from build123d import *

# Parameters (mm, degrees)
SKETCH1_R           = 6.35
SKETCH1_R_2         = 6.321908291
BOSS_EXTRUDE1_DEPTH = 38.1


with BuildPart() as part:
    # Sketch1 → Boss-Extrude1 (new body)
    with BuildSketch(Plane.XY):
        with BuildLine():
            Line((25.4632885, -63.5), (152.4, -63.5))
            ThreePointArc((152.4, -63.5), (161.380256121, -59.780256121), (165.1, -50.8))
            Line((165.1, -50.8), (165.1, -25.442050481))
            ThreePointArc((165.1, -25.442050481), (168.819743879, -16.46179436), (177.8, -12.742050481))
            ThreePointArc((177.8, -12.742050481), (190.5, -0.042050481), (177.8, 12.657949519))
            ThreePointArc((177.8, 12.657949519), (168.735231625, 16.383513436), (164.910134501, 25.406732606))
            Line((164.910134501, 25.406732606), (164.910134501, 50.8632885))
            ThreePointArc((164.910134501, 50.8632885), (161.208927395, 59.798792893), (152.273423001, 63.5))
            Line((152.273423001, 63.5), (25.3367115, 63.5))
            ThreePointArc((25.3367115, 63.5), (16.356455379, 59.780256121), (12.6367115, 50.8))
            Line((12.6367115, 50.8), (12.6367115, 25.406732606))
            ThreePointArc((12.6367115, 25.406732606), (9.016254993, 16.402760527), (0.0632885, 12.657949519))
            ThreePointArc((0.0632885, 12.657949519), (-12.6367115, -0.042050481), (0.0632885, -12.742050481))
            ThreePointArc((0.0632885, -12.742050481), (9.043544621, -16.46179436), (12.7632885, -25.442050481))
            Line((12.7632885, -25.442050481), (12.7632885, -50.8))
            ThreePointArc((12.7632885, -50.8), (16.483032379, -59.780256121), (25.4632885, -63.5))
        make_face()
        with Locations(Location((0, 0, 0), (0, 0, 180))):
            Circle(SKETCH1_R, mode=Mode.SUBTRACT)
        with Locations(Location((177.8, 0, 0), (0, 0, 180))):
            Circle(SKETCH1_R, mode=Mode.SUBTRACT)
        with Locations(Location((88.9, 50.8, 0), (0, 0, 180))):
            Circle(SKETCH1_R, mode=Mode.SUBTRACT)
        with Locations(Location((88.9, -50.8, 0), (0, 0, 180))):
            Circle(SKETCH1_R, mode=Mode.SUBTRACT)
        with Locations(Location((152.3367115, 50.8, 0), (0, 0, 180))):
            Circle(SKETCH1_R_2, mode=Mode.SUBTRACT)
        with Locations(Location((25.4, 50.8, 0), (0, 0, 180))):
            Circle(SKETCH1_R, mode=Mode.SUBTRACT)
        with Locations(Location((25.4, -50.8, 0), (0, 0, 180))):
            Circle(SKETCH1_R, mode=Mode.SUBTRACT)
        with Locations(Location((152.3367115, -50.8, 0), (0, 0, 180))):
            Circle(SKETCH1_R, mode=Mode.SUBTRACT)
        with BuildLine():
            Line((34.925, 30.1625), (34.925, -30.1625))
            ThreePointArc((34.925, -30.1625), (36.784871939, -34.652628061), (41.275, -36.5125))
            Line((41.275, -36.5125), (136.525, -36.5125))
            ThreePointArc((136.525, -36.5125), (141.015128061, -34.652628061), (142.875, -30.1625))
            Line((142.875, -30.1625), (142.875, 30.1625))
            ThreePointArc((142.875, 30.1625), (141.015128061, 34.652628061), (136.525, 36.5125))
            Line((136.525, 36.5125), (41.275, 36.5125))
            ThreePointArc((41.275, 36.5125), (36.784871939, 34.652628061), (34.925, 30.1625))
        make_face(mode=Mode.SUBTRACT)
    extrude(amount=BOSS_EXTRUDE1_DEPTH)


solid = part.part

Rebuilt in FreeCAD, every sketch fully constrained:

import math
import FreeCAD as App
import Part
import Sketcher
from FreeCAD import Vector
Q = App.Units.Quantity

doc = App.newDocument("Part")
body = doc.addObject("PartDesign::Body", "Body")

# Sketch on XY plane
sketch1 = doc.addObject("Sketcher::SketchObject", "Sketch")
body.addObject(sketch1)
sketch1.AttachmentSupport = (doc.XY_Plane, [""])
sketch1.MapMode = "FlatFace"
sketch1.addGeometry([
    Part.LineSegment(Vector(25.463289, -63.5, 0), Vector(152.4, -63.5, 0)),  # 0
    Part.ArcOfCircle(Part.Circle(Vector(152.4, -50.8, 0), Vector(0, 0, 1), 12.7), math.radians(-90), math.radians(0)),  # 1
    Part.LineSegment(Vector(165.1, -50.8, 0), Vector(165.1, -25.44205, 0)),  # 2
    Part.ArcOfCircle(Part.Circle(Vector(177.8, -25.44205, 0), Vector(0, 0, 1), 12.7), math.radians(90), math.radians(180)),  # 3
    Part.ArcOfCircle(Part.Circle(Vector(177.8, -0.04205, 0), Vector(0, 0, 1), 12.7), math.radians(-90), math.radians(90)),  # 4
    Part.ArcOfCircle(Part.Circle(Vector(177.8, 25.548596, 0), Vector(0, 0, 1), 12.890646), math.radians(-179.369441), math.radians(-90)),  # 5
    Part.LineSegment(Vector(164.910135, 25.406733, 0), Vector(164.910135, 50.863289, 0)),  # 6
    Part.ArcOfCircle(Part.Circle(Vector(152.273423, 50.863289, 0), Vector(0, 0, 1), 12.636712), math.radians(0), math.radians(90)),  # 7
    Part.LineSegment(Vector(152.273423, 63.5, 0), Vector(25.336711, 63.5, 0)),  # 8
    Part.ArcOfCircle(Part.Circle(Vector(25.336711, 50.8, 0), Vector(0, 0, 1), 12.7), math.radians(90), math.radians(180)),  # 9
    Part.LineSegment(Vector(12.636712, 50.8, 0), Vector(12.636712, 25.406733, 0)),  # 10
    Part.ArcOfCircle(Part.Circle(Vector(0.063288, 25.232579, 0), Vector(0, 0, 1), 12.574629), math.radians(-90), math.radians(0.793551)),  # 11
    Part.ArcOfCircle(Part.Circle(Vector(0.063288, -0.04205, 0), Vector(0, 0, 1), 12.7), math.radians(90), math.radians(270)),  # 12
    Part.ArcOfCircle(Part.Circle(Vector(0.063288, -25.44205, 0), Vector(0, 0, 1), 12.7), math.radians(0), math.radians(90)),  # 13
    Part.LineSegment(Vector(12.763288, -25.44205, 0), Vector(12.763288, -50.8, 0)),  # 14
    Part.ArcOfCircle(Part.Circle(Vector(25.463289, -50.8, 0), Vector(0, 0, 1), 12.7), math.radians(180), math.radians(270)),  # 15
    Part.Circle(Vector(25.4, -50.8, 0), Vector(0, 0, 1), 6.35),  # 16
    Part.Circle(Vector(88.9, -50.8, 0), Vector(0, 0, 1), 6.35),  # 17
    Part.Circle(Vector(152.336712, -50.8, 0), Vector(0, 0, 1), 6.35),  # 18
    Part.Circle(Vector(0, 0, 0), Vector(0, 0, 1), 6.35),  # 19
    Part.Circle(Vector(25.4, 50.8, 0), Vector(0, 0, 1), 6.35),  # 20
    Part.LineSegment(Vector(34.925, -30.1625, 0), Vector(34.925, 30.1625, 0)),  # 21
    Part.ArcOfCircle(Part.Circle(Vector(41.275, 30.1625, 0), Vector(0, 0, 1), 6.35), math.radians(90), math.radians(180)),  # 22
    Part.LineSegment(Vector(41.275, 36.5125, 0), Vector(136.525, 36.5125, 0)),  # 23
    Part.ArcOfCircle(Part.Circle(Vector(136.525, 30.1625, 0), Vector(0, 0, 1), 6.35), math.radians(0), math.radians(90)),  # 24
    Part.LineSegment(Vector(142.875, 30.1625, 0), Vector(142.875, -30.1625, 0)),  # 25
    Part.ArcOfCircle(Part.Circle(Vector(136.525, -30.1625, 0), Vector(0, 0, 1), 6.35), math.radians(-90), math.radians(0)),  # 26
    Part.LineSegment(Vector(136.525, -36.5125, 0), Vector(41.275, -36.5125, 0)),  # 27
    Part.ArcOfCircle(Part.Circle(Vector(41.275, -30.1625, 0), Vector(0, 0, 1), 6.35), math.radians(180), math.radians(270)),  # 28
    Part.Circle(Vector(177.8, 0, 0), Vector(0, 0, 1), 6.35),  # 29
    Part.Circle(Vector(88.9, 50.8, 0), Vector(0, 0, 1), 6.35),  # 30
    Part.Circle(Vector(152.336712, 50.8, 0), Vector(0, 0, 1), 6.321908),  # 31
], False)
sketch1.addConstraint([
    Sketcher.Constraint("Coincident", 0, 2, 1, 1),
    Sketcher.Constraint("Coincident", 1, 2, 2, 1),
    Sketcher.Constraint("Coincident", 2, 2, 3, 2),
    Sketcher.Constraint("Coincident", 3, 1, 4, 1),
    Sketcher.Constraint("Coincident", 4, 2, 5, 2),
    Sketcher.Constraint("Coincident", 5, 1, 6, 1),
    Sketcher.Constraint("Coincident", 6, 2, 7, 1),
    Sketcher.Constraint("Coincident", 7, 2, 8, 1),
    Sketcher.Constraint("Coincident", 8, 2, 9, 1),
    Sketcher.Constraint("Coincident", 9, 2, 10, 1),
    Sketcher.Constraint("Coincident", 10, 2, 11, 2),
    Sketcher.Constraint("Coincident", 11, 1, 12, 1),
    Sketcher.Constraint("Coincident", 12, 2, 13, 2),
    Sketcher.Constraint("Coincident", 13, 1, 14, 1),
    Sketcher.Constraint("Coincident", 14, 2, 15, 1),
    Sketcher.Constraint("Coincident", 15, 2, 0, 1),
    Sketcher.Constraint("Coincident", 21, 2, 22, 2),
    Sketcher.Constraint("Coincident", 22, 1, 23, 1),
    Sketcher.Constraint("Coincident", 23, 2, 24, 2),
    Sketcher.Constraint("Coincident", 24, 1, 25, 1),
    Sketcher.Constraint("Coincident", 25, 2, 26, 2),
    Sketcher.Constraint("Coincident", 26, 1, 27, 1),
    Sketcher.Constraint("Coincident", 27, 2, 28, 2),
    Sketcher.Constraint("Coincident", 28, 1, 21, 1),
    Sketcher.Constraint("Horizontal", 0),
    Sketcher.Constraint("Vertical", 2),
    Sketcher.Constraint("Vertical", 6),
    Sketcher.Constraint("Horizontal", 8),
    Sketcher.Constraint("Vertical", 10),
    Sketcher.Constraint("Vertical", 14),
    Sketcher.Constraint("Vertical", 21),
    Sketcher.Constraint("Horizontal", 23),
    Sketcher.Constraint("Vertical", 25),
    Sketcher.Constraint("Horizontal", 27),
    Sketcher.Constraint("Coincident", 19, 3, -1, 1),
    Sketcher.Constraint("PointOnObject", 29, 3, -1),
    Sketcher.Constraint("Diameter", 16, Q("0.5 in")),
    Sketcher.Constraint("Diameter", 17, Q("0.5 in")),
    Sketcher.Constraint("Diameter", 18, Q("0.5 in")),
    Sketcher.Constraint("Diameter", 19, Q("0.5 in")),
    Sketcher.Constraint("Diameter", 20, Q("0.5 in")),
    Sketcher.Constraint("Diameter", 29, Q("0.5 in")),
    Sketcher.Constraint("Diameter", 30, Q("0.5 in")),
    Sketcher.Constraint("Radius", 1, Q("0.5 in")),
    Sketcher.Constraint("Radius", 3, Q("0.5 in")),
    Sketcher.Constraint("Radius", 4, Q("0.5 in")),
    Sketcher.Constraint("Radius", 9, Q("0.5 in")),
    Sketcher.Constraint("Radius", 12, Q("0.5 in")),
    Sketcher.Constraint("Radius", 13, Q("0.5 in")),
    Sketcher.Constraint("Radius", 15, Q("0.5 in")),
    Sketcher.Constraint("Radius", 22, Q("0.25 in")),
    Sketcher.Constraint("Radius", 24, Q("0.25 in")),
    Sketcher.Constraint("Radius", 26, Q("0.25 in")),
    Sketcher.Constraint("Radius", 28, Q("0.25 in")),
    Sketcher.Constraint("DistanceX", -1, 1, 1, 3, Q("6 in")),
    Sketcher.Constraint("DistanceY", 1, 3, -1, 1, Q("2 in")),
    Sketcher.Constraint("DistanceX", -1, 1, 4, 3, Q("7 in")),
    Sketcher.Constraint("DistanceX", -1, 1, 5, 3, Q("7 in")),
    Sketcher.Constraint("DistanceY", -1, 1, 9, 3, Q("2 in")),
    Sketcher.Constraint("DistanceX", -1, 1, 16, 3, Q("1 in")),
    Sketcher.Constraint("DistanceY", 16, 3, -1, 1, Q("2 in")),
    Sketcher.Constraint("DistanceY", 17, 3, -1, 1, Q("2 in")),
    Sketcher.Constraint("DistanceY", 18, 3, -1, 1, Q("2 in")),
    Sketcher.Constraint("DistanceX", -1, 1, 20, 3, Q("1 in")),
    Sketcher.Constraint("DistanceY", -1, 1, 20, 3, Q("2 in")),
    Sketcher.Constraint("DistanceX", -1, 1, 29, 3, Q("7 in")),
    Sketcher.Constraint("DistanceY", -1, 1, 30, 3, Q("2 in")),
    Sketcher.Constraint("DistanceY", -1, 1, 31, 3, Q("2 in")),
    Sketcher.Constraint("DistanceX", -1, 1, 0, 2, Q("6 in")),
    Sketcher.Constraint("DistanceY", 1, 2, -1, 1, Q("2 in")),
    Sketcher.Constraint("DistanceX", -1, 1, 3, 1, Q("7 in")),
    Sketcher.Constraint("DistanceX", -1, 1, 4, 2, Q("7 in")),
    Sketcher.Constraint("DistanceY", -1, 1, 9, 2, Q("2 in")),
    Sketcher.Constraint("DistanceY", 14, 2, -1, 1, Q("2 in")),
    Sketcher.Constraint("DistanceX", 12, 3, 15, 3, Q("1 in")),
    Sketcher.Constraint("DistanceX", 11, 3, 15, 3, Q("1 in")),
    Sketcher.Constraint("DistanceY", 2, 2, 4, 3, Q("1 in")),
    Sketcher.Constraint("DistanceY", 13, 1, 12, 3, Q("1 in")),
    Sketcher.Constraint("DistanceX", 23, 1, 23, 2, Q("3.75 in")),
    Sketcher.Constraint("DistanceX", 27, 2, 27, 1, Q("3.75 in")),
    Sketcher.Constraint("DistanceX", -1, 1, 17, 3, Q("3.5 in")),
    Sketcher.Constraint("DistanceX", -1, 1, 30, 3, Q("3.5 in")),
    Sketcher.Constraint("DistanceX", 9, 2, 8, 2, Q("0.5 in")),
    Sketcher.Constraint("DistanceX", 12, 2, 13, 1, Q("0.5 in")),
    Sketcher.Constraint("DistanceX", 14, 2, 15, 2, Q("0.5 in")),
    Sketcher.Constraint("DistanceY", 21, 1, 21, 2, Q("2.375 in")),
    Sketcher.Constraint("DistanceY", 25, 2, 25, 1, Q("2.375 in")),
    Sketcher.Constraint("DistanceX", 21, 2, 22, 1, Q("0.25 in")),
    Sketcher.Constraint("DistanceY", 21, 2, 22, 1, Q("0.25 in")),
    Sketcher.Constraint("DistanceX", 23, 2, 24, 1, Q("0.25 in")),
    Sketcher.Constraint("DistanceY", 24, 1, 23, 2, Q("0.25 in")),
    Sketcher.Constraint("DistanceX", 26, 1, 25, 2, Q("0.25 in")),
    Sketcher.Constraint("DistanceY", 26, 1, 25, 2, Q("0.25 in")),
    Sketcher.Constraint("DistanceX", -1, 1, 22, 3, Q("1.625 in")),
    Sketcher.Constraint("DistanceY", -1, 1, 22, 3, Q("1.1875 in")),
    Sketcher.Constraint("Radius", 7, 12.636712),
    Sketcher.Constraint("Radius", 11, 12.574629),
    Sketcher.Constraint("Diameter", 31, 12.643817),
    Sketcher.Constraint("Radius", 5, 12.890646),
    Sketcher.Constraint("DistanceX", 0, 1, 0, 2, 126.936712),
    Sketcher.Constraint("DistanceX", 8, 2, 8, 1, 126.936712),
    Sketcher.Constraint("DistanceY", 2, 1, 2, 2, 25.35795),
    Sketcher.Constraint("DistanceY", 14, 2, 14, 1, 25.35795),
    Sketcher.Constraint("DistanceY", 6, 1, 6, 2, 25.456556),
    Sketcher.Constraint("DistanceY", 10, 2, 10, 1, 25.393267),
    Sketcher.Constraint("DistanceX", -1, 1, 18, 3, 152.336712),
    Sketcher.Constraint("DistanceX", -1, 1, 31, 3, 152.336712),
    Sketcher.Constraint("DistanceY", -1, 1, 6, 2, 50.863289),
    Sketcher.Constraint("DistanceX", -1, 1, 11, 1, 0.063288),
])
pad1 = doc.addObject("PartDesign::Pad", "Pad")
body.addObject(pad1)
pad1.Profile = sketch1
pad1.Length = Q("1.5 in")

doc.recompute()
